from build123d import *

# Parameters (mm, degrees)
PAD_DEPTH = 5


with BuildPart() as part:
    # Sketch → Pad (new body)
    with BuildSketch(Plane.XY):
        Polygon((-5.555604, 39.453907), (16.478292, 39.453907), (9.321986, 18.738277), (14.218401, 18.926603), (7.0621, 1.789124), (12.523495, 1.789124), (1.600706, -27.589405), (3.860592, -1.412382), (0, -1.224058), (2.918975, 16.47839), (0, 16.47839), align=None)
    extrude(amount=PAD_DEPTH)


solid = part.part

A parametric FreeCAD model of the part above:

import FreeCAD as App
import Part
import Sketcher

V = App.Vector

doc = App.newDocument("Part")
params = doc.addObject("Spreadsheet::Sheet", "Params")
for row, (alias, value) in enumerate([
    ("pad1_length", "5 mm"),
], start=1):
    params.set(f"A{row}", alias)
    params.set(f"B{row}", "=" + value)
    params.setAlias(f"B{row}", alias)

body = doc.addObject("PartDesign::Body", "Body")

# Sketch on XY plane
sketch1 = doc.addObject("Sketcher::SketchObject", "Sketch")
body.addObject(sketch1)
sketch1.AttachmentSupport = (doc.XY_Plane, [""])
sketch1.MapMode = "FlatFace"
sketch1.addGeometry([
    Part.LineSegment(V(16.5, 39.5, 0), V(-5.6, 39.5, 0)),  # 0
    Part.LineSegment(V(-5.6, 39.5, 0), V(0, 16.5, 0)),  # 1
    Part.LineSegment(V(0, 16.5, 0), V(2.9, 16.5, 0)),  # 2
    Part.LineSegment(V(2.9, 16.5, 0), V(0, -1.2, 0)),  # 3
    Part.LineSegment(V(0, -1.2, 0), V(3.9, -1.4, 0)),  # 4
    Part.LineSegment(V(3.9, -1.4, 0), V(1.6, -27.6, 0)),  # 5
    Part.LineSegment(V(1.6, -27.6, 0), V(12.5, 1.8, 0)),  # 6
    Part.LineSegment(V(12.5, 1.8, 0), V(7.1, 1.8, 0)),  # 7
    Part.LineSegment(V(7.1, 1.8, 0), V(14.2, 18.9, 0)),  # 8
    Part.LineSegment(V(14.2, 18.9, 0), V(9.3, 18.7, 0)),  # 9
    Part.LineSegment(V(9.3, 18.7, 0), V(16.5, 39.5, 0)),  # 10
], False)
sketch1.addConstraint([
    Sketcher.Constraint("Coincident", 0, 2, 1, 1),
    Sketcher.Constraint("Coincident", 1, 2, 2, 1),
    Sketcher.Constraint("Coincident", 2, 2, 3, 1),
    Sketcher.Constraint("Coincident", 3, 2, 4, 1),
    Sketcher.Constraint("Coincident", 4, 2, 5, 1),
    Sketcher.Constraint("Coincident", 5, 2, 6, 1),
    Sketcher.Constraint("Coincident", 6, 2, 7, 1),
    Sketcher.Constraint("Coincident", 7, 2, 8, 1),
    Sketcher.Constraint("Coincident", 8, 2, 9, 1),
    Sketcher.Constraint("Coincident", 9, 2, 10, 1),
    Sketcher.Constraint("Coincident", 10, 2, 0, 1),
    Sketcher.Constraint("Horizontal", 0),
    Sketcher.Constraint("Horizontal", 2),
    Sketcher.Constraint("Horizontal", 7),
    Sketcher.Constraint("PointOnObject", 1, 2, -2),
    Sketcher.Constraint("PointOnObject", 3, 2, -2),
    Sketcher.Constraint("DistanceX", -1, 1, 7, 2, 7.0621),
    Sketcher.Constraint("DistanceX", -1, 1, 8, 2, 14.218401),
    Sketcher.Constraint("Distance", 3, 17.94149),
    Sketcher.Constraint("Distance", 5, 26.274391),
    Sketcher.Constraint("Distance", 8, 18.57164),
    Sketcher.Constraint("Distance", 10, 21.916889),
    Sketcher.Constraint("DistanceX", 0, 2, 0, 1, 22.033896),
    Sketcher.Constraint("DistanceX", 2, 1, 2, 2, 2.918975),
    Sketcher.Constraint("DistanceX", 7, 2, 7, 1, 5.461395),
    Sketcher.Constraint("DistanceY", -1, 1, 1, 2, 16.47839),
    Sketcher.Constraint("DistanceX", -1, 1, 4, 2, 3.860592),
    Sketcher.Constraint("DistanceX", -1, 1, 10, 2, 16.478292),
    Sketcher.Constraint("DistanceY", 4, 2, 0, 2, 40.866289),
    Sketcher.Constraint("DistanceX", 5, 2, 2, 2, 1.318269),
    Sketcher.Constraint("DistanceY", 3, 2, 6, 2, 3.013182),
    Sketcher.Constraint("DistanceY", 5, 2, 6, 2, 29.378529),
    Sketcher.Constraint("DistanceX", 2, 2, 9, 2, 6.403011),
])
pad1 = doc.addObject("PartDesign::Pad", "Pad")
body.addObject(pad1)
pad1.Profile = sketch1
pad1.setExpression("Length", "Params.pad1_length")

doc.recompute()
